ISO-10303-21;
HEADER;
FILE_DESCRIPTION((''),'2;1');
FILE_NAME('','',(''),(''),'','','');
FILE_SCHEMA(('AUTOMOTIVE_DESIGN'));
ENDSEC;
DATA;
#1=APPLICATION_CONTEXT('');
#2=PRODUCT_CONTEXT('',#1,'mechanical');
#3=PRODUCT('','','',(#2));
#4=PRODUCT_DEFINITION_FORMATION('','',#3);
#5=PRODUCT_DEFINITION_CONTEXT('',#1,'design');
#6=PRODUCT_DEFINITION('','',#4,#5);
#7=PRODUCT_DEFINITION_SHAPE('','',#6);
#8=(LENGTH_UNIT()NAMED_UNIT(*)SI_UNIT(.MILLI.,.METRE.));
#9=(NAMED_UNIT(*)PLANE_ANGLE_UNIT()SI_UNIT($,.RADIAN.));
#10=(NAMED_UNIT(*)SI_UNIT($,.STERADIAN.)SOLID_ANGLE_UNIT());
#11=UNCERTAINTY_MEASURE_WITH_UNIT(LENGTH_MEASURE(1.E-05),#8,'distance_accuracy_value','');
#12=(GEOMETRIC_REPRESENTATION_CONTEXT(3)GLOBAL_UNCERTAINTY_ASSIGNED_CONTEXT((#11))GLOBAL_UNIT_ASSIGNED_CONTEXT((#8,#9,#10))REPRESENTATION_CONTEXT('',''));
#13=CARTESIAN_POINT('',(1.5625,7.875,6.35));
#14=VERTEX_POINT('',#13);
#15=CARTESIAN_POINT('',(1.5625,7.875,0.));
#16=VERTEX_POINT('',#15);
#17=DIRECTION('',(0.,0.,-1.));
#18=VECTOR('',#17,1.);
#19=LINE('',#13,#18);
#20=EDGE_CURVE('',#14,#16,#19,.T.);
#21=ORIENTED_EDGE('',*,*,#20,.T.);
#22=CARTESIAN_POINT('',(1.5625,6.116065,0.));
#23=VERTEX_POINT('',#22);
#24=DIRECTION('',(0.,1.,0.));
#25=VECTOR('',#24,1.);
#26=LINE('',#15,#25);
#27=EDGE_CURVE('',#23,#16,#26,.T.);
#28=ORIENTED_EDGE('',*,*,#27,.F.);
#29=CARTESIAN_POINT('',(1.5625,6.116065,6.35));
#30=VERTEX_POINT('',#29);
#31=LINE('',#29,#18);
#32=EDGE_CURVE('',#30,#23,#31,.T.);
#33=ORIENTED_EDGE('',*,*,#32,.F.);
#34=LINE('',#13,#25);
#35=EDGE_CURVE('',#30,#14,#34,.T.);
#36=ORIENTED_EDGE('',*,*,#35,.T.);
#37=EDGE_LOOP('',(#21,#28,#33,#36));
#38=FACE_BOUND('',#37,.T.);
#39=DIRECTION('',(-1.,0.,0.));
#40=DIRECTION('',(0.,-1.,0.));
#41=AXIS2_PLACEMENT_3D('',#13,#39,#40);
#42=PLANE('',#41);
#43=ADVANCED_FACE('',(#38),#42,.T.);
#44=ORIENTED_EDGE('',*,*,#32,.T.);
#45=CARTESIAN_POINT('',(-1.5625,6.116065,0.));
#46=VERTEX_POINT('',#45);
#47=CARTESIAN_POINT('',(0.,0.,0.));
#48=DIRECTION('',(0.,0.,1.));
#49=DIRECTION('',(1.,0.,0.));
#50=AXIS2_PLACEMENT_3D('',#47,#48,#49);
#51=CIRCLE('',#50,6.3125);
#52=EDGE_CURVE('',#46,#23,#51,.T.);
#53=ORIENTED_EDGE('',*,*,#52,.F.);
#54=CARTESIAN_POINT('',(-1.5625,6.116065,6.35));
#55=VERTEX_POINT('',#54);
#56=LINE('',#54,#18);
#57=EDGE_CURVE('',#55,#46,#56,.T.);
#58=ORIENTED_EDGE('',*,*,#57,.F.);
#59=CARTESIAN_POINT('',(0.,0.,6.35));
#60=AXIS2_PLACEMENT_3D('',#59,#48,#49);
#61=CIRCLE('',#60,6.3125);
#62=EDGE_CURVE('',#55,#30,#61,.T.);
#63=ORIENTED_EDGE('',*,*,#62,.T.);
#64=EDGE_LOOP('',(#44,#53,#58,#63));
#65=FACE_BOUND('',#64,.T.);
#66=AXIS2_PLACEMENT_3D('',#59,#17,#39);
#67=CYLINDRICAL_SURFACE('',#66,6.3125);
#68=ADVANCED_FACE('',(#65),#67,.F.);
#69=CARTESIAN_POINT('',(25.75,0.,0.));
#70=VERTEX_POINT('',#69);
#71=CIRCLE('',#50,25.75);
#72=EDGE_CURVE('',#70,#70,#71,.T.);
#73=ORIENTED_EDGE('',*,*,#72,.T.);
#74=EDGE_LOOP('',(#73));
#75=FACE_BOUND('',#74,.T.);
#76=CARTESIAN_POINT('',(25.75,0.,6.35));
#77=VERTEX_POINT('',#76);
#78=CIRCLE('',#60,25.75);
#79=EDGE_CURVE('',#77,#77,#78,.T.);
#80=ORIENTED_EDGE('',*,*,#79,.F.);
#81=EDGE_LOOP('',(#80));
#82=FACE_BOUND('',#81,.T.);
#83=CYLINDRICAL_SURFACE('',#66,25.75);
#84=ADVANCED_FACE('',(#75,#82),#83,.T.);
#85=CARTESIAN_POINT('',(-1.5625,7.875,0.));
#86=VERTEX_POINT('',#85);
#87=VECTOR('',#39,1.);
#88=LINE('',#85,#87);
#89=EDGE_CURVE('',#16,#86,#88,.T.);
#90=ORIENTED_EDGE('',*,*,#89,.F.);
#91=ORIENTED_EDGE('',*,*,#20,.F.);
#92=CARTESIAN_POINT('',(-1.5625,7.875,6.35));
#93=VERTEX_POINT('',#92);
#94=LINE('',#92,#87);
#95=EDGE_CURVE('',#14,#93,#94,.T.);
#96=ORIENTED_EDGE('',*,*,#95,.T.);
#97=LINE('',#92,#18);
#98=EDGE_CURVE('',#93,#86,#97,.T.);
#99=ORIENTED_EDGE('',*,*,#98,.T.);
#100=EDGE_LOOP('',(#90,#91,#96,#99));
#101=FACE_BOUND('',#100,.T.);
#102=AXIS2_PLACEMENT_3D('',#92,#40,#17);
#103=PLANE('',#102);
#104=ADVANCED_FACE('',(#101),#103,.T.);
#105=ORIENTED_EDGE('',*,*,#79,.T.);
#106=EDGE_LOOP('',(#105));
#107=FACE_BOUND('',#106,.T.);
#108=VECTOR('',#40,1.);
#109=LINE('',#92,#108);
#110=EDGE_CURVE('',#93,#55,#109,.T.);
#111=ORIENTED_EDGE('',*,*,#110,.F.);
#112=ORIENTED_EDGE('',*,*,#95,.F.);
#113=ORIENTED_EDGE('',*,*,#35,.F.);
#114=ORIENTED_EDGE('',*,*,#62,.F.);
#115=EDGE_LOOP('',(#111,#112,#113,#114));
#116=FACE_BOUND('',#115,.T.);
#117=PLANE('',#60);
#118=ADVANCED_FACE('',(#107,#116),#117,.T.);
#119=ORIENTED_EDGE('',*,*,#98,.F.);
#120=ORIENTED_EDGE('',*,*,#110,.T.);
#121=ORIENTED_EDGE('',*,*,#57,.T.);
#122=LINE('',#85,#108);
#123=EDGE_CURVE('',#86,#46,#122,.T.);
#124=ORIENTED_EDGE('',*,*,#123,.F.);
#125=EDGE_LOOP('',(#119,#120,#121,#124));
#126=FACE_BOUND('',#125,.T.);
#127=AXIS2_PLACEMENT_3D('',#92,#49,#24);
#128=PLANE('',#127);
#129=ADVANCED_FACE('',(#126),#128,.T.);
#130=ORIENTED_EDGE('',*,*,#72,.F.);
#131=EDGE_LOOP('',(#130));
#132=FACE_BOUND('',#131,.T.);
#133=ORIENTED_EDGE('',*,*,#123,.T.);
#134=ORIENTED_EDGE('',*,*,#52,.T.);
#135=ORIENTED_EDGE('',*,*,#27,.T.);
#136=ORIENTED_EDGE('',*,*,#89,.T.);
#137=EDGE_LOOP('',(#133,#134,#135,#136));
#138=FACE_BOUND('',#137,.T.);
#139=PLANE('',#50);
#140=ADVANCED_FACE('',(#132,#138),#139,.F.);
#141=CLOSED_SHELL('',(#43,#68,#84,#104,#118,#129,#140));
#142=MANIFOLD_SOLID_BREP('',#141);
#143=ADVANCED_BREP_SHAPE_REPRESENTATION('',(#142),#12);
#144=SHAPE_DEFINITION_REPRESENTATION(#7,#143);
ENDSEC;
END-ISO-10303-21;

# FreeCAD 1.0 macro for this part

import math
import FreeCAD as App
import Part
import Sketcher
from FreeCAD import Vector

doc = App.newDocument("Part")
body = doc.addObject("PartDesign::Body", "Body")

# Sketch on XY plane
sketch1 = doc.addObject("Sketcher::SketchObject", "Sketch")
body.addObject(sketch1)
sketch1.AttachmentSupport = (doc.XY_Plane, [""])
sketch1.MapMode = "FlatFace"
sketch1.addGeometry([
    Part.Circle(Vector(0, 0, 0), Vector(0, 0, 1), 25.8),  # 0
    Part.LineSegment(Vector(-1.6, 6.1, 0), Vector(-1.6, 7.9, 0)),  # 1
    Part.LineSegment(Vector(-1.6, 7.9, 0), Vector(1.6, 7.9, 0)),  # 2
    Part.LineSegment(Vector(1.6, 7.9, 0), Vector(1.6, 6.1, 0)),  # 3
    Part.ArcOfCircle(Part.Circle(Vector(0, 0, 0), Vector(0, 0, 1), 6.3), math.radians(104), math.radians(436)),  # 4
], False)
sketch1.addConstraint([
    Sketcher.Constraint("Coincident", 1, 2, 2, 1),
    Sketcher.Constraint("Coincident", 2, 2, 3, 1),
    Sketcher.Constraint("Coincident", 3, 2, 4, 2),
    Sketcher.Constraint("Coincident", 4, 1, 1, 1),
    Sketcher.Constraint("Vertical", 1),
    Sketcher.Constraint("Horizontal", 2),
    Sketcher.Constraint("Vertical", 3),
    Sketcher.Constraint("Coincident", 0, 3, -1, 1),
    Sketcher.Constraint("Coincident", 4, 3, -1, 1),
    Sketcher.Constraint("Horizontal", 3, 2, 4, 1),
    Sketcher.Constraint("Diameter", 0, 51.5),
    Sketcher.Constraint("Radius", 4, 6.3125),
    Sketcher.Constraint("DistanceX", 2, 1, 2, 2, 3.125),
    Sketcher.Constraint("DistanceY", -1, 1, 1, 2, 7.875),
])
pad1 = doc.addObject("PartDesign::Pad", "Pad")
body.addObject(pad1)
pad1.Profile = sketch1
pad1.Length = 6.35

doc.recompute()
